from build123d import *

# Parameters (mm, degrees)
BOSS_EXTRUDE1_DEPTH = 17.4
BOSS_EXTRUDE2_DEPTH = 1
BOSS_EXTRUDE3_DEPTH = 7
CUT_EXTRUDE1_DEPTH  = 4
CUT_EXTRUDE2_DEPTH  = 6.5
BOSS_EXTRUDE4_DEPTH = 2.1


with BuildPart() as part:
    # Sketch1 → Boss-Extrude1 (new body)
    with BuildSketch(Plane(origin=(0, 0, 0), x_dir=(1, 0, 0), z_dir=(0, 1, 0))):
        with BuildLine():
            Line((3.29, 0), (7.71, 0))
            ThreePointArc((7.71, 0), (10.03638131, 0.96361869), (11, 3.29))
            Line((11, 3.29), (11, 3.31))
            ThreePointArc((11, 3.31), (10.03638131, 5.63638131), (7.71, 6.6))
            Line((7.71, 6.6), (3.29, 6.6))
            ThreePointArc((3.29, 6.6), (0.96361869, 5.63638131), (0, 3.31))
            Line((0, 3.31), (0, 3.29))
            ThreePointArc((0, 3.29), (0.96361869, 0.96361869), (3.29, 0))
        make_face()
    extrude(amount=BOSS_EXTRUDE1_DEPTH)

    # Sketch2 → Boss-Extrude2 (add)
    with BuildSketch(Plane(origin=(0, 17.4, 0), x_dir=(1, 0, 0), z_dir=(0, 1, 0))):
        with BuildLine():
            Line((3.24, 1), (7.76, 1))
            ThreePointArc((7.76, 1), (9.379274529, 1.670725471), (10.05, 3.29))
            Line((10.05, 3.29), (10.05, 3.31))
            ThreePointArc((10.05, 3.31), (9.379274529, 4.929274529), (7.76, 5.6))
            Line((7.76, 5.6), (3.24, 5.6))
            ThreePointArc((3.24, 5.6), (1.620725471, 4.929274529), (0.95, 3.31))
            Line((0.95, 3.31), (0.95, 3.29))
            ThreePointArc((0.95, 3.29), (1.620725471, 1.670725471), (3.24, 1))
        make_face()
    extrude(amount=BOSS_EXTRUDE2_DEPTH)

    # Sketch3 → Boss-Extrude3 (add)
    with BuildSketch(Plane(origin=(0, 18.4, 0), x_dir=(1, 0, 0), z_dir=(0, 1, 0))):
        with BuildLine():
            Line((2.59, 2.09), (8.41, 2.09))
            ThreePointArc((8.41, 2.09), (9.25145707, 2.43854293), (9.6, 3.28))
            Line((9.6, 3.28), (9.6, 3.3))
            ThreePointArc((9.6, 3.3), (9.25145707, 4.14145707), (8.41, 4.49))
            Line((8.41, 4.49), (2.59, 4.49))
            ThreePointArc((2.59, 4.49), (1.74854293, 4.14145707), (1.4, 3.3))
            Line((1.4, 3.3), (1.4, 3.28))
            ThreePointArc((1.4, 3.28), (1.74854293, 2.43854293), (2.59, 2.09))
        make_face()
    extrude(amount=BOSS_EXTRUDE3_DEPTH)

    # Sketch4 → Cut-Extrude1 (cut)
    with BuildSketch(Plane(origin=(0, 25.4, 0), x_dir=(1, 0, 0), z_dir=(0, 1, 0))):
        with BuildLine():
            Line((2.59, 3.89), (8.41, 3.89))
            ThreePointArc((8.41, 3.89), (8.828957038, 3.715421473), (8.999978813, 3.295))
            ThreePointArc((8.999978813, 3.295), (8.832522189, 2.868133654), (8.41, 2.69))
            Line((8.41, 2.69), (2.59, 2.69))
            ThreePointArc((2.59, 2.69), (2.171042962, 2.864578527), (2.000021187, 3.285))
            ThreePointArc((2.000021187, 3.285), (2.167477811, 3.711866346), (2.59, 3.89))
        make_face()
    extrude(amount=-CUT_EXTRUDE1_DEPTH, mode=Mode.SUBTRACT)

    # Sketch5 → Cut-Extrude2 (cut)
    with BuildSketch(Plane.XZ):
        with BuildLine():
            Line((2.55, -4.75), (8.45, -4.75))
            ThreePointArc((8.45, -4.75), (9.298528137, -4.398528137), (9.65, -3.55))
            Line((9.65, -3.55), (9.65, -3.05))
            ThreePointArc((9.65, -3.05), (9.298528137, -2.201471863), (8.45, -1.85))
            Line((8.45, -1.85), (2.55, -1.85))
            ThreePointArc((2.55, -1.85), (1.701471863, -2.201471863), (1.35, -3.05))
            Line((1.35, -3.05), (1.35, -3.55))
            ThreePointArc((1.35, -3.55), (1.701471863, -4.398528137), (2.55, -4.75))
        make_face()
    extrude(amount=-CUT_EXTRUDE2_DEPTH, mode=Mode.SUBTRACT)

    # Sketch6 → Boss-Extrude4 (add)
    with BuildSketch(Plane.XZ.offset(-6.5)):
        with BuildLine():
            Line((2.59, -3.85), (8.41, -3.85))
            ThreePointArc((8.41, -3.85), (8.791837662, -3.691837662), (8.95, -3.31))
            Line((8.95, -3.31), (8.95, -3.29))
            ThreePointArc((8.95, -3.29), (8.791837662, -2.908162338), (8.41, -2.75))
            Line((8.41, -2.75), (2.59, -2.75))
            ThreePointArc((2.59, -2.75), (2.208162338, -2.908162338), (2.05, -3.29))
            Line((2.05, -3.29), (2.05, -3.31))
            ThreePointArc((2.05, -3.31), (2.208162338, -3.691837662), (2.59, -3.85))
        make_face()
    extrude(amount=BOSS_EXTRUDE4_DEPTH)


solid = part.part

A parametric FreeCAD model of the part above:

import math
import FreeCAD as App
import Part
import Sketcher
from FreeCAD import Vector
Q = App.Units.Quantity

doc = App.newDocument("Part")
params = doc.addObject("Spreadsheet::Sheet", "Params")
for row, (alias, value) in enumerate([
    ("sketch1_radius", "3.29 mm"),
    ("sketch1_height", "0.02 mm"),
    ("pad1_length", "17.4 mm"),
    ("sketch2_radius", "2.29 mm"),
    ("sketch2_width", "4.52 mm"),
    ("sketch2_height", "0.02 mm"),
    ("pad2_length", "1 mm"),
    ("sketch3_radius", "1.19 mm"),
    ("sketch3_width", "5.82 mm"),
    ("sketch3_height", "0.02 mm"),
    ("pad3_length", "7 mm"),
    ("sketch4_radius", "0.59 mm"),
    ("sketch4_width", "5.82 mm"),
    ("pocket1_length", "4 mm"),
    ("sketch5_radius", "1.2 mm"),
    ("sketch5_width", "5.9 mm"),
    ("sketch5_height", "0.5 mm"),
    ("pocket2_length", "6.5 mm"),
    ("sketch6_radius", "0.54 mm"),
    ("sketch6_width", "5.82 mm"),
    ("sketch6_height", "0.02 mm"),
    ("pad4_length", "2.1 mm"),
], start=1):
    params.set(f"A{row}", alias)
    params.set(f"B{row}", "=" + value)
    params.setAlias(f"B{row}", alias)

body = doc.addObject("PartDesign::Body", "Body")

# Sketch on XZ plane
sketch1 = doc.addObject("Sketcher::SketchObject", "Sketch")
body.addObject(sketch1)
sketch1.AttachmentSupport = (doc.XZ_Plane, [""])
sketch1.MapMode = "FlatFace"
sketch1.addGeometry(Part.LineSegment(Vector(3.29, 0, 0), Vector(7.71, 0, 0)), False)
sketch1.addGeometry(Part.ArcOfCircle(Part.Circle(Vector(7.71, -3.29, 0), Vector(0, 0, 1), 3.29), math.radians(0), math.radians(90)), False)
sketch1.addGeometry(Part.LineSegment(Vector(11, -3.29, 0), Vector(11, -3.31, 0)), False)
sketch1.addGeometry(Part.ArcOfCircle(Part.Circle(Vector(7.71, -3.31, 0), Vector(0, 0, 1), 3.29), math.radians(-90), math.radians(0)), False)
sketch1.addGeometry(Part.LineSegment(Vector(7.71, -6.6, 0), Vector(3.29, -6.6, 0)), False)
sketch1.addGeometry(Part.ArcOfCircle(Part.Circle(Vector(3.29, -3.31, 0), Vector(0, 0, 1), 3.29), math.radians(180), math.radians(270)), False)
sketch1.addGeometry(Part.LineSegment(Vector(0, -3.31, 0), Vector(0, -3.29, 0)), False)
sketch1.addGeometry(Part.ArcOfCircle(Part.Circle(Vector(3.29, -3.29, 0), Vector(0, 0, 1), 3.29), math.radians(90), math.radians(180)), False)
sketch1.addConstraint(Sketcher.Constraint("Tangent", 0, 2, 1, 2))
sketch1.addConstraint(Sketcher.Constraint("Tangent", 1, 1, 2, 1))
sketch1.addConstraint(Sketcher.Constraint("Tangent", 2, 2, 3, 2))
sketch1.addConstraint(Sketcher.Constraint("Tangent", 3, 1, 4, 1))
sketch1.addConstraint(Sketcher.Constraint("Tangent", 4, 2, 5, 2))
sketch1.addConstraint(Sketcher.Constraint("Tangent", 5, 1, 6, 1))
sketch1.addConstraint(Sketcher.Constraint("Tangent", 6, 2, 7, 2))
sketch1.addConstraint(Sketcher.Constraint("Tangent", 7, 1, 0, 1))
sketch1.addConstraint(Sketcher.Constraint("Horizontal", 0))
sketch1.addConstraint(Sketcher.Constraint("Vertical", 2))
sketch1.addConstraint(Sketcher.Constraint("Horizontal", 4))
sketch1.addConstraint(Sketcher.Constraint("Vertical", 6))
sketch1.addConstraint(Sketcher.Constraint("Equal", 1, 3))
sketch1.addConstraint(Sketcher.Constraint("Equal", 3, 5))
sketch1.addConstraint(Sketcher.Constraint("Equal", 5, 7))
sketch1.addConstraint(Sketcher.Constraint("PointOnObject", 0, 2, -1))
sketch1.addConstraint(Sketcher.Constraint("PointOnObject", 5, 1, -2))
sketch1.addConstraint(Sketcher.Constraint("Radius", 1, Q("3.29 mm")))
sketch1.addConstraint(Sketcher.Constraint("DistanceX", -1, 1, 1, 1, Q("11 mm")))
sketch1.addConstraint(Sketcher.Constraint("DistanceY", 2, 2, 2, 1, Q("0.02 mm")))
sketch1.setExpression("Constraints[17]", "Params.sketch1_radius")
sketch1.setExpression("Constraints[19]", "Params.sketch1_height")
pad1 = doc.addObject("PartDesign::Pad", "Pad")
body.addObject(pad1)
pad1.Profile = sketch1
pad1.setExpression("Length", "Params.pad1_length")
pad1.Reversed = True

# Sketch on XZ plane
sketch2 = doc.addObject("Sketcher::SketchObject", "Sketch001")
body.addObject(sketch2)
sketch2.AttachmentSupport = (doc.XZ_Plane, [""])
sketch2.MapMode = "FlatFace"
sketch2.AttachmentOffset = App.Placement(Vector(0, 0, -17.4), App.Rotation())
sketch2.addGeometry(Part.LineSegment(Vector(3.24, -1, 0), Vector(7.76, -1, 0)), False)
sketch2.addGeometry(Part.ArcOfCircle(Part.Circle(Vector(7.76, -3.29, 0), Vector(0, 0, 1), 2.29), math.radians(0), math.radians(90)), False)
sketch2.addGeometry(Part.LineSegment(Vector(10.05, -3.29, 0), Vector(10.05, -3.31, 0)), False)
sketch2.addGeometry(Part.ArcOfCircle(Part.Circle(Vector(7.76, -3.31, 0), Vector(0, 0, 1), 2.29), math.radians(-90), math.radians(0)), False)
sketch2.addGeometry(Part.LineSegment(Vector(7.76, -5.6, 0), Vector(3.24, -5.6, 0)), False)
sketch2.addGeometry(Part.ArcOfCircle(Part.Circle(Vector(3.24, -3.31, 0), Vector(0, 0, 1), 2.29), math.radians(180), math.radians(270)), False)
sketch2.addGeometry(Part.LineSegment(Vector(0.95, -3.31, 0), Vector(0.95, -3.29, 0)), False)
sketch2.addGeometry(Part.ArcOfCircle(Part.Circle(Vector(3.24, -3.29, 0), Vector(0, 0, 1), 2.29), math.radians(90), math.radians(180)), False)
sketch2.addConstraint(Sketcher.Constraint("Tangent", 0, 2, 1, 2))
sketch2.addConstraint(Sketcher.Constraint("Tangent", 1, 1, 2, 1))
sketch2.addConstraint(Sketcher.Constraint("Tangent", 2, 2, 3, 2))
sketch2.addConstraint(Sketcher.Constraint("Tangent", 3, 1, 4, 1))
sketch2.addConstraint(Sketcher.Constraint("Tangent", 4, 2, 5, 2))
sketch2.addConstraint(Sketcher.Constraint("Tangent", 5, 1, 6, 1))
sketch2.addConstraint(Sketcher.Constraint("Tangent", 6, 2, 7, 2))
sketch2.addConstraint(Sketcher.Constraint("Tangent", 7, 1, 0, 1))
sketch2.addConstraint(Sketcher.Constraint("Horizontal", 0))
sketch2.addConstraint(Sketcher.Constraint("Vertical", 2))
sketch2.addConstraint(Sketcher.Constraint("Horizontal", 4))
sketch2.addConstraint(Sketcher.Constraint("Vertical", 6))
sketch2.addConstraint(Sketcher.Constraint("Equal", 1, 3))
sketch2.addConstraint(Sketcher.Constraint("Equal", 3, 5))
sketch2.addConstraint(Sketcher.Constraint("Equal", 5, 7))
sketch2.addConstraint(Sketcher.Constraint("Radius", 1, Q("2.29 mm")))
sketch2.addConstraint(Sketcher.Constraint("DistanceY", 0, 2, -1, 1, Q("1 mm")))
sketch2.addConstraint(Sketcher.Constraint("DistanceX", 0, 1, 0, 2, Q("4.52 mm")))
sketch2.addConstraint(Sketcher.Constraint("DistanceY", 2, 2, 2, 1, Q("0.02 mm")))
sketch2.addConstraint(Sketcher.Constraint("DistanceX", -1, 1, 1, 3, Q("7.76 mm")))
sketch2.setExpression("Constraints[15]", "Params.sketch2_radius")
sketch2.setExpression("Constraints[17]", "Params.sketch2_width")
sketch2.setExpression("Constraints[18]", "Params.sketch2_height")
pad2 = doc.addObject("PartDesign::Pad", "Pad001")
body.addObject(pad2)
pad2.Profile = sketch2
pad2.setExpression("Length", "Params.pad2_length")
pad2.Reversed = True

# Sketch on XZ plane
sketch3 = doc.addObject("Sketcher::SketchObject", "Sketch002")
body.addObject(sketch3)
sketch3.AttachmentSupport = (doc.XZ_Plane, [""])
sketch3.MapMode = "FlatFace"
sketch3.AttachmentOffset = App.Placement(Vector(0, 0, -18.4), App.Rotation())
sketch3.addGeometry(Part.LineSegment(Vector(2.59, -2.09, 0), Vector(8.41, -2.09, 0)), False)
sketch3.addGeometry(Part.ArcOfCircle(Part.Circle(Vector(8.41, -3.28, 0), Vector(0, 0, 1), 1.19), math.radians(0), math.radians(90)), False)
sketch3.addGeometry(Part.LineSegment(Vector(9.6, -3.28, 0), Vector(9.6, -3.3, 0)), False)
sketch3.addGeometry(Part.ArcOfCircle(Part.Circle(Vector(8.41, -3.3, 0), Vector(0, 0, 1), 1.19), math.radians(-90), math.radians(0)), False)
sketch3.addGeometry(Part.LineSegment(Vector(8.41, -4.49, 0), Vector(2.59, -4.49, 0)), False)
sketch3.addGeometry(Part.ArcOfCircle(Part.Circle(Vector(2.59, -3.3, 0), Vector(0, 0, 1), 1.19), math.radians(180), math.radians(270)), False)
sketch3.addGeometry(Part.LineSegment(Vector(1.4, -3.3, 0), Vector(1.4, -3.28, 0)), False)
sketch3.addGeometry(Part.ArcOfCircle(Part.Circle(Vector(2.59, -3.28, 0), Vector(0, 0, 1), 1.19), math.radians(90), math.radians(180)), False)
sketch3.addConstraint(Sketcher.Constraint("Tangent", 0, 2, 1, 2))
sketch3.addConstraint(Sketcher.Constraint("Tangent", 1, 1, 2, 1))
sketch3.addConstraint(Sketcher.Constraint("Tangent", 2, 2, 3, 2))
sketch3.addConstraint(Sketcher.Constraint("Tangent", 3, 1, 4, 1))
sketch3.addConstraint(Sketcher.Constraint("Tangent", 4, 2, 5, 2))
sketch3.addConstraint(Sketcher.Constraint("Tangent", 5, 1, 6, 1))
sketch3.addConstraint(Sketcher.Constraint("Tangent", 6, 2, 7, 2))
sketch3.addConstraint(Sketcher.Constraint("Tangent", 7, 1, 0, 1))
sketch3.addConstraint(Sketcher.Constraint("Horizontal", 0))
sketch3.addConstraint(Sketcher.Constraint("Vertical", 2))
sketch3.addConstraint(Sketcher.Constraint("Horizontal", 4))
sketch3.addConstraint(Sketcher.Constraint("Vertical", 6))
sketch3.addConstraint(Sketcher.Constraint("Equal", 1, 3))
sketch3.addConstraint(Sketcher.Constraint("Equal", 3, 5))
sketch3.addConstraint(Sketcher.Constraint("Equal", 5, 7))
sketch3.addConstraint(Sketcher.Constraint("Radius", 1, Q("1.19 mm")))
sketch3.addConstraint(Sketcher.Constraint("DistanceX", 0, 1, 0, 2, Q("5.82 mm")))
sketch3.addConstraint(Sketcher.Constraint("DistanceY", 2, 2, 2, 1, Q("0.02 mm")))
sketch3.addConstraint(Sketcher.Constraint("DistanceY", 3, 3, -1, 1, Q("3.3 mm")))
sketch3.addConstraint(Sketcher.Constraint("DistanceX", -1, 1, 1, 1, Q("9.6 mm")))
sketch3.setExpression("Constraints[15]", "Params.sketch3_radius")
sketch3.setExpression("Constraints[16]", "Params.sketch3_width")
sketch3.setExpression("Constraints[17]", "Params.sketch3_height")
pad3 = doc.addObject("PartDesign::Pad", "Pad002")
body.addObject(pad3)
pad3.Profile = sketch3
pad3.setExpression("Length", "Params.pad3_length")
pad3.Reversed = True

# Sketch on XZ plane
sketch4 = doc.addObject("Sketcher::SketchObject", "Sketch003")
body.addObject(sketch4)
sketch4.AttachmentSupport = (doc.XZ_Plane, [""])
sketch4.MapMode = "FlatFace"
sketch4.AttachmentOffset = App.Placement(Vector(0, 0, -25.4), App.Rotation())
sketch4.addGeometry(Part.LineSegment(Vector(8.41, -3.89, 0), Vector(2.59, -3.89, 0)), False)
sketch4.addGeometry(Part.ArcOfCircle(Part.Circle(Vector(2.59, -3.299835, 0), Vector(0, 0, 1), 0.590165), math.radians(178.559631), math.radians(270)), False)
sketch4.addGeometry(Part.ArcOfCircle(Part.Circle(Vector(2.59, -3.28, 0), Vector(0, 0, 1), 0.59), math.radians(90), math.radians(180.485563)), False)
sketch4.addGeometry(Part.LineSegment(Vector(2.59, -2.69, 0), Vector(8.41, -2.69, 0)), False)
sketch4.addGeometry(Part.ArcOfCircle(Part.Circle(Vector(8.41, -3.280165, 0), Vector(0, 0, 1), 0.590165), math.radians(-1.440369), math.radians(90)), False)
sketch4.addGeometry(Part.ArcOfCircle(Part.Circle(Vector(8.41, -3.3, 0), Vector(0, 0, 1), 0.59), math.radians(-90), math.radians(0.485563)), False)
sketch4.addConstraint(Sketcher.Constraint("Tangent", 0, 2, 1, 2))
sketch4.addConstraint(Sketcher.Constraint("Coincident", 1, 1, 2, 2))
sketch4.addConstraint(Sketcher.Constraint("Tangent", 2, 1, 3, 1))
sketch4.addConstraint(Sketcher.Constraint("Tangent", 3, 2, 4, 2))
sketch4.addConstraint(Sketcher.Constraint("Coincident", 4, 1, 5, 2))
sketch4.addConstraint(Sketcher.Constraint("Tangent", 5, 1, 0, 1))
sketch4.addConstraint(Sketcher.Constraint("Horizontal", 0))
sketch4.addConstraint(Sketcher.Constraint("Horizontal", 3))
sketch4.addConstraint(Sketcher.Constraint("Equal", 1, 4))
sketch4.addConstraint(Sketcher.Constraint("Equal", 2, 5))
sketch4.addConstraint(Sketcher.Constraint("Vertical", 1, 3, 2, 3))
sketch4.addConstraint(Sketcher.Constraint("Vertical", 4, 3, 5, 3))
sketch4.addConstraint(Sketcher.Constraint("Radius", 2, Q("0.59 mm")))
sketch4.addConstraint(Sketcher.Constraint("DistanceX", 0, 2, 0, 1, Q("5.82 mm")))
sketch4.addConstraint(Sketcher.Constraint("DistanceY", 5, 3, -1, 1, Q("3.3 mm")))
sketch4.addConstraint(Sketcher.Constraint("DistanceY", 0, 2, 2, 1, Q("1.2 mm")))
sketch4.addConstraint(Sketcher.Constraint("DistanceX", -1, 1, 1, 3, Q("2.59 mm")))
sketch4.addConstraint(Sketcher.Constraint("DistanceY", 1, 1, -1, 1, Q("3.285 mm")))
sketch4.setExpression("Constraints[12]", "Params.sketch4_radius")
sketch4.setExpression("Constraints[13]", "Params.sketch4_width")
pocket1 = doc.addObject("PartDesign::Pocket", "Pocket")
body.addObject(pocket1)
pocket1.Profile = sketch4
pocket1.setExpression("Length", "Params.pocket1_length")
pocket1.Reversed = True

# Sketch on XZ plane
sketch5 = doc.addObject("Sketcher::SketchObject", "Sketch004")
body.addObject(sketch5)
sketch5.AttachmentSupport = (doc.XZ_Plane, [""])
sketch5.MapMode = "FlatFace"
sketch5.addGeometry(Part.LineSegment(Vector(2.55, -4.75, 0), Vector(8.45, -4.75, 0)), False)
sketch5.addGeometry(Part.ArcOfCircle(Part.Circle(Vector(8.45, -3.55, 0), Vector(0, 0, 1), 1.2), math.radians(-90), math.radians(0)), False)
sketch5.addGeometry(Part.LineSegment(Vector(9.65, -3.55, 0), Vector(9.65, -3.05, 0)), False)
sketch5.addGeometry(Part.ArcOfCircle(Part.Circle(Vector(8.45, -3.05, 0), Vector(0, 0, 1), 1.2), math.radians(0), math.radians(90)), False)
sketch5.addGeometry(Part.LineSegment(Vector(8.45, -1.85, 0), Vector(2.55, -1.85, 0)), False)
sketch5.addGeometry(Part.ArcOfCircle(Part.Circle(Vector(2.55, -3.05, 0), Vector(0, 0, 1), 1.2), math.radians(90), math.radians(180)), False)
sketch5.addGeometry(Part.LineSegment(Vector(1.35, -3.05, 0), Vector(1.35, -3.55, 0)), False)
sketch5.addGeometry(Part.ArcOfCircle(Part.Circle(Vector(2.55, -3.55, 0), Vector(0, 0, 1), 1.2), math.radians(-180), math.radians(-90)), False)
sketch5.addConstraint(Sketcher.Constraint("Tangent", 0, 2, 1, 1))
sketch5.addConstraint(Sketcher.Constraint("Tangent", 1, 2, 2, 1))
sketch5.addConstraint(Sketcher.Constraint("Tangent", 2, 2, 3, 1))
sketch5.addConstraint(Sketcher.Constraint("Tangent", 3, 2, 4, 1))
sketch5.addConstraint(Sketcher.Constraint("Tangent", 4, 2, 5, 1))
sketch5.addConstraint(Sketcher.Constraint("Tangent", 5, 2, 6, 1))
sketch5.addConstraint(Sketcher.Constraint("Tangent", 6, 2, 7, 1))
sketch5.addConstraint(Sketcher.Constraint("Tangent", 7, 2, 0, 1))
sketch5.addConstraint(Sketcher.Constraint("Horizontal", 0))
sketch5.addConstraint(Sketcher.Constraint("Vertical", 2))
sketch5.addConstraint(Sketcher.Constraint("Horizontal", 4))
sketch5.addConstraint(Sketcher.Constraint("Vertical", 6))
sketch5.addConstraint(Sketcher.Constraint("Equal", 1, 3))
sketch5.addConstraint(Sketcher.Constraint("Equal", 3, 5))
sketch5.addConstraint(Sketcher.Constraint("Equal", 5, 7))
sketch5.addConstraint(Sketcher.Constraint("Radius", 1, Q("1.2 mm")))
sketch5.addConstraint(Sketcher.Constraint("DistanceX", 0, 1, 0, 2, Q("5.9 mm")))
sketch5.addConstraint(Sketcher.Constraint("DistanceY", 2, 1, 2, 2, Q("0.5 mm")))
sketch5.addConstraint(Sketcher.Constraint("DistanceX", -1, 1, 1, 3, Q("8.45 mm")))
sketch5.addConstraint(Sketcher.Constraint("DistanceY", 1, 3, -1, 1, Q("3.55 mm")))
sketch5.setExpression("Constraints[15]", "Params.sketch5_radius")
sketch5.setExpression("Constraints[16]", "Params.sketch5_width")
sketch5.setExpression("Constraints[17]", "Params.sketch5_height")
pocket2 = doc.addObject("PartDesign::Pocket", "Pocket001")
body.addObject(pocket2)
pocket2.Profile = sketch5
pocket2.setExpression("Length", "Params.pocket2_length")

# Sketch on XZ plane
sketch6 = doc.addObject("Sketcher::SketchObject", "Sketch005")
body.addObject(sketch6)
sketch6.AttachmentSupport = (doc.XZ_Plane, [""])
sketch6.MapMode = "FlatFace"
sketch6.AttachmentOffset = App.Placement(Vector(0, 0, -6.5), App.Rotation())
sketch6.addGeometry(Part.LineSegment(Vector(2.59, -3.85, 0), Vector(8.41, -3.85, 0)), False)
sketch6.addGeometry(Part.ArcOfCircle(Part.Circle(Vector(8.41, -3.31, 0), Vector(0, 0, 1), 0.54), math.radians(-90), math.radians(0)), False)
sketch6.addGeometry(Part.LineSegment(Vector(8.95, -3.31, 0), Vector(8.95, -3.29, 0)), False)
sketch6.addGeometry(Part.ArcOfCircle(Part.Circle(Vector(8.41, -3.29, 0), Vector(0, 0, 1), 0.54), math.radians(0), math.radians(90)), False)
sketch6.addGeometry(Part.LineSegment(Vector(8.41, -2.75, 0), Vector(2.59, -2.75, 0)), False)
sketch6.addGeometry(Part.ArcOfCircle(Part.Circle(Vector(2.59, -3.29, 0), Vector(0, 0, 1), 0.54), math.radians(90), math.radians(180)), False)
sketch6.addGeometry(Part.LineSegment(Vector(2.05, -3.29, 0), Vector(2.05, -3.31, 0)), False)
sketch6.addGeometry(Part.ArcOfCircle(Part.Circle(Vector(2.59, -3.31, 0), Vector(0, 0, 1), 0.54), math.radians(180), math.radians(270)), False)
sketch6.addConstraint(Sketcher.Constraint("Tangent", 0, 2, 1, 1))
sketch6.addConstraint(Sketcher.Constraint("Tangent", 1, 2, 2, 1))
sketch6.addConstraint(Sketcher.Constraint("Tangent", 2, 2, 3, 1))
sketch6.addConstraint(Sketcher.Constraint("Tangent", 3, 2, 4, 1))
sketch6.addConstraint(Sketcher.Constraint("Tangent", 4, 2, 5, 1))
sketch6.addConstraint(Sketcher.Constraint("Tangent", 5, 2, 6, 1))
sketch6.addConstraint(Sketcher.Constraint("Tangent", 6, 2, 7, 1))
sketch6.addConstraint(Sketcher.Constraint("Tangent", 7, 2, 0, 1))
sketch6.addConstraint(Sketcher.Constraint("Horizontal", 0))
sketch6.addConstraint(Sketcher.Constraint("Vertical", 2))
sketch6.addConstraint(Sketcher.Constraint("Horizontal", 4))
sketch6.addConstraint(Sketcher.Constraint("Vertical", 6))
sketch6.addConstraint(Sketcher.Constraint("Equal", 1, 3))
sketch6.addConstraint(Sketcher.Constraint("Equal", 3, 5))
sketch6.addConstraint(Sketcher.Constraint("Equal", 5, 7))
sketch6.addConstraint(Sketcher.Constraint("Radius", 1, Q("0.54 mm")))
sketch6.addConstraint(Sketcher.Constraint("DistanceX", 0, 1, 0, 2, Q("5.82 mm")))
sketch6.addConstraint(Sketcher.Constraint("DistanceY", 2, 1, 2, 2, Q("0.02 mm")))
sketch6.addConstraint(Sketcher.Constraint("DistanceX", -1, 1, 1, 3, Q("8.41 mm")))
sketch6.addConstraint(Sketcher.Constraint("DistanceY", 1, 3, -1, 1, Q("3.31 mm")))
sketch6.setExpression("Constraints[15]", "Params.sketch6_radius")
sketch6.setExpression("Constraints[16]", "Params.sketch6_width")
sketch6.setExpression("Constraints[17]", "Params.sketch6_height")
pad4 = doc.addObject("PartDesign::Pad", "Pad003")
body.addObject(pad4)
pad4.Profile = sketch6
pad4.setExpression("Length", "Params.pad4_length")

doc.recompute()
